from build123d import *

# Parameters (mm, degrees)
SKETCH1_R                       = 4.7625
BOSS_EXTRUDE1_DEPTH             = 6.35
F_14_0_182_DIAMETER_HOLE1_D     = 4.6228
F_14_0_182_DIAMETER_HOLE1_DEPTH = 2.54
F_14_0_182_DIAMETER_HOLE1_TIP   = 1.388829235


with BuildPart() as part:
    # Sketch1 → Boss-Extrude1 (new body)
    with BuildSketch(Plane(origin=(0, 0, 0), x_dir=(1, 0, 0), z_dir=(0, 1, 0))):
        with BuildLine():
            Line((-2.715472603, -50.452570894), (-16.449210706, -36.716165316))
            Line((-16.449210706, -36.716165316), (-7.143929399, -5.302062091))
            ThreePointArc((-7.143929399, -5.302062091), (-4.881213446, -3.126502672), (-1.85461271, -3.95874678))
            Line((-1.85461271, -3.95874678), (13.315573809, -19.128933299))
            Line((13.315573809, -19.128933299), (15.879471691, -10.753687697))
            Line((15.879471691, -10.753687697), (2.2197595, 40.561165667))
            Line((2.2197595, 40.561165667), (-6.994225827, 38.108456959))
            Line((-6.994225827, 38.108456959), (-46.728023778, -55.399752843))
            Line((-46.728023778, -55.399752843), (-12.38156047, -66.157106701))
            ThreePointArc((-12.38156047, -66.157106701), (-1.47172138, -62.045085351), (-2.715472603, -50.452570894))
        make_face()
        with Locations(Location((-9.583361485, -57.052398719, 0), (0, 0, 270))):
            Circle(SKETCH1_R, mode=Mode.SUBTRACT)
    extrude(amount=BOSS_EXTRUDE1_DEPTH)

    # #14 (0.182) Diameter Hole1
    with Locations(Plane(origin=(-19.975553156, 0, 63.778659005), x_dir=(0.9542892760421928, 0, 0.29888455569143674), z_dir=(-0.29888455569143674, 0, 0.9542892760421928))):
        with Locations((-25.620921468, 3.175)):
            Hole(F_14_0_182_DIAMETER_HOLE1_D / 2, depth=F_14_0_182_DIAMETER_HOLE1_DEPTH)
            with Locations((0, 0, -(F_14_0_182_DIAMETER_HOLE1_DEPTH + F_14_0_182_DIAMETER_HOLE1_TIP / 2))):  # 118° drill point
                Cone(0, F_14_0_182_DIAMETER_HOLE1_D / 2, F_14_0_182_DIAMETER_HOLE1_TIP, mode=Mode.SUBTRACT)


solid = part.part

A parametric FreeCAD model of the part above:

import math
import FreeCAD as App
import Part
import Sketcher
from FreeCAD import Vector
Q = App.Units.Quantity

doc = App.newDocument("Part")
params = doc.addObject("Spreadsheet::Sheet", "Params")
for row, (alias, value) in enumerate([
    ("sketch1_length", "4 in"),
    ("sketch1_diameter", "0.375 in"),
    ("sketch1_radius", "0.125 in"),
    ("sketch1_radius2", "0.375 in"),
    ("pad1_length", "0.25 in"),
    ("sketch2_diameter", "0.182 in"),
    ("hole_diameter", "0.182 in"),
    ("hole_depth", "0.1 in"),
], start=1):
    params.set(f"A{row}", alias)
    params.set(f"B{row}", "=" + value)
    params.setAlias(f"B{row}", alias)

body = doc.addObject("PartDesign::Body", "Body")

# Sketch on XZ plane
sketch1 = body.newObject("Sketcher::SketchObject", "Sketch")
sketch1.AttachmentSupport = (doc.getObject("XZ_Plane"), [""])
sketch1.MapMode = "FlatFace"
sketch1.addGeometry([
    Part.LineSegment(Vector(-2.7, 50.5, 0), Vector(-16.4, 36.7, 0)),  # 0
    Part.LineSegment(Vector(-16.4, 36.7, 0), Vector(-7.1, 5.3, 0)),  # 1
    Part.ArcOfCircle(Part.Circle(Vector(-4.1, 6.2, 0), Vector(0, 0, 1), 3.2), math.radians(-163), math.radians(-45)),  # 2
    Part.LineSegment(Vector(-1.9, 4, 0), Vector(13.3, 19.1, 0)),  # 3
    Part.LineSegment(Vector(13.3, 19.1, 0), Vector(15.9, 10.8, 0)),  # 4
    Part.LineSegment(Vector(15.9, 10.8, 0), Vector(2.2, -40.6, 0)),  # 5
    Part.LineSegment(Vector(2.2, -40.6, 0), Vector(-7, -38.1, 0)),  # 6
    Part.LineSegment(Vector(-7, -38.1, 0), Vector(-46.7, 55.4, 0)),  # 7
    Part.LineSegment(Vector(-46.7, 55.4, 0), Vector(-12.4, 66.2, 0)),  # 8
    Part.ArcOfCircle(Part.Circle(Vector(-9.6, 57.1, 0), Vector(0, 0, 1), 9.5), math.radians(-44), math.radians(107)),  # 9
    Part.Circle(Vector(-9.6, 57.1, 0), Vector(0, 0, 1), 4.8),  # 10
], False)
sketch1.addConstraint([
    Sketcher.Constraint("Coincident", 0, 2, 1, 1),
    Sketcher.Constraint("Tangent", 1, 2, 2, 1),
    Sketcher.Constraint("Tangent", 2, 2, 3, 1),
    Sketcher.Constraint("Coincident", 3, 2, 4, 1),
    Sketcher.Constraint("Coincident", 4, 2, 5, 1),
    Sketcher.Constraint("Coincident", 5, 2, 6, 1),
    Sketcher.Constraint("Coincident", 6, 2, 7, 1),
    Sketcher.Constraint("Coincident", 7, 2, 8, 1),
    Sketcher.Constraint("Coincident", 8, 2, 9, 2),
    Sketcher.Constraint("Coincident", 9, 1, 0, 1),
    Sketcher.Constraint("Coincident", 10, 3, 9, 3),
    Sketcher.Constraint("Perpendicular", 5, 6),
    Sketcher.Constraint("Distance", 7, Q("4 in")),
    Sketcher.Constraint("Diameter", 10, Q("0.375 in")),
    Sketcher.Constraint("Angle", 3, Q("45 deg")),
    Sketcher.Constraint("Radius", 2, Q("0.125 in")),
    Sketcher.Constraint("Radius", 9, Q("0.375 in")),
    Sketcher.Constraint("Angle", 1, Q("-73.5 deg")),
    Sketcher.Constraint("Distance", 4, 8.758899),
    Sketcher.Constraint("DistanceY", -1, 1, 9, 3, 57.052399),
    Sketcher.Constraint("DistanceX", 1, 2, 4, 2, 23.023401),
    Sketcher.Constraint("DistanceY", 5, 2, 3, 2, 59.690099),
    Sketcher.Constraint("DistanceX", 8, 2, 10, 3, 2.798199),
    Sketcher.Constraint("Distance", 8, 35.991669),
    Sketcher.Constraint("DistanceY", -1, 1, 2, 3, 6.203811),
    Sketcher.Constraint("DistanceX", 9, 3, -1, 1, 9.583361),
    Sketcher.Constraint("DistanceX", 0, 2, -1, 1, 16.449211),
    Sketcher.Constraint("DistanceX", 1, 2, -1, 1, 7.143929),
    Sketcher.Constraint("DistanceX", -1, 1, 5, 2, 2.219759),
    Sketcher.Constraint("DistanceY", -1, 1, 9, 1, 50.452571),
    Sketcher.Constraint("DistanceX", 2, 3, 3, 2, 17.415251),
    Sketcher.Constraint("DistanceY", 5, 2, 6, 2, 2.452709),
])
sketch1.setExpression("Constraints[12]", "Params.sketch1_length")
sketch1.setExpression("Constraints[13]", "Params.sketch1_diameter")
sketch1.setExpression("Constraints[15]", "Params.sketch1_radius")
sketch1.setExpression("Constraints[16]", "Params.sketch1_radius2")
pad1 = body.newObject("PartDesign::Pad", "Pad")
pad1.Profile = sketch1
pad1.setExpression("Length", "Params.pad1_length")
pad1.Reversed = True

# Sketch on an angled plane
sketch2 = body.newObject("Sketcher::SketchObject", "Sketch001")
sketch2.Placement = App.Placement(Vector(-19.975553, 0, 63.778659), App.Rotation(Vector(0.954289276, 0, 0.298884556), Vector(0, 1, 0), Vector(-0.298884556, 0, 0.954289276), "ZXY"))
sketch2.addGeometry(Part.Circle(Vector(-25.6, 3.2, 0), Vector(0, 0, 1), 2.3), False)
sketch2.addConstraint([
    Sketcher.Constraint("Diameter", 0, Q("0.182 in")),
    Sketcher.Constraint("DistanceY", -1, 1, 0, 3, Q("0.125 in")),
    Sketcher.Constraint("DistanceX", 0, 3, -1, 1, 25.620921),
])
sketch2.setExpression("Constraints[0]", "Params.sketch2_diameter")
doc.recompute()
hole = body.newObject("PartDesign::Hole", "Hole")
hole.Profile = sketch2
hole.ThreadType = "None"
hole.setExpression("Diameter", "Params.hole_diameter")
hole.DepthType = "Dimension"
hole.setExpression("Depth", "Params.hole_depth")
hole.DrillPoint = "Angled"
hole.DrillPointAngle = 118

doc.recompute()
